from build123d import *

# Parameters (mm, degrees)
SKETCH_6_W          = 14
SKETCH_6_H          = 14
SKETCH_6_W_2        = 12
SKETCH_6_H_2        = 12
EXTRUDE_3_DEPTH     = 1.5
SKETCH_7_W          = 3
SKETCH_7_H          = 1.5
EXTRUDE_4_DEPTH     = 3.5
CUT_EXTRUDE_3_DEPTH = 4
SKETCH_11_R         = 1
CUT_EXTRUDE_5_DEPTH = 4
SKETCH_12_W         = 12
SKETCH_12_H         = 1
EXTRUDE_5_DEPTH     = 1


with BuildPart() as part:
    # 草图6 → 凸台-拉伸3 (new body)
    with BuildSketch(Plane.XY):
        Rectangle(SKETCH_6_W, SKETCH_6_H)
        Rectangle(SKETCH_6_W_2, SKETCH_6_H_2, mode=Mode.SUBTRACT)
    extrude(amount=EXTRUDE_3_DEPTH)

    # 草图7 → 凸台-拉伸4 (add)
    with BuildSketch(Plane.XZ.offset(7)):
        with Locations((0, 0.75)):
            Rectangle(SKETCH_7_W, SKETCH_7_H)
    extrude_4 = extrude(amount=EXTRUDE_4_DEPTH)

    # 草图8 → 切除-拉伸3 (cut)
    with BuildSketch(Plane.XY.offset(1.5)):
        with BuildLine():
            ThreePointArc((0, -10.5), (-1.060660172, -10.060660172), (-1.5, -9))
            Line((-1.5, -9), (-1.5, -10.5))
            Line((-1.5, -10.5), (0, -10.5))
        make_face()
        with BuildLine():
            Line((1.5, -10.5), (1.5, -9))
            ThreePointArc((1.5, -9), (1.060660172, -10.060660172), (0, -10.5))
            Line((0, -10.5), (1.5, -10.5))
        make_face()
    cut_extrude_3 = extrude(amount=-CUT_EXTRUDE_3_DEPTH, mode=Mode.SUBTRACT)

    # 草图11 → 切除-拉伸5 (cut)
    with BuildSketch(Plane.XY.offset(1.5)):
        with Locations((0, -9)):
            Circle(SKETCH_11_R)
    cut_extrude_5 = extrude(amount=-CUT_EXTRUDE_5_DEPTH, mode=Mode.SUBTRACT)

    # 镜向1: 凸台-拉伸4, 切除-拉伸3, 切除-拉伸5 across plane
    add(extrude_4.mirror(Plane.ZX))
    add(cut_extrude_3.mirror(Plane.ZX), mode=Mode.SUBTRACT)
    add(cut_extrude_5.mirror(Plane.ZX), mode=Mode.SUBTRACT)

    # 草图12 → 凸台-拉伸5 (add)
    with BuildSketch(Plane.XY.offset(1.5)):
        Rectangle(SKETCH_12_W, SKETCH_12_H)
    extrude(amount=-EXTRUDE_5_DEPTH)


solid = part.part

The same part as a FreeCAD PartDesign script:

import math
import FreeCAD as App
import Part
import Sketcher
Q = App.Units.Quantity

doc = App.newDocument("Part")
body = doc.addObject("PartDesign::Body", "Body")

# Sketch on XY plane
sketch1 = body.newObject("Sketcher::SketchObject", "Sketch")
sketch1.AttachmentSupport = (doc.getObject("XY_Plane"), [""])
sketch1.MapMode = "FlatFace"
sketch1.addGeometry(Part.LineSegment(App.Vector(-7, 7, 0), App.Vector(-7, -7, 0)), False)
sketch1.addGeometry(Part.LineSegment(App.Vector(-7, -7, 0), App.Vector(7, -7, 0)), False)
sketch1.addGeometry(Part.LineSegment(App.Vector(7, -7, 0), App.Vector(7, 7, 0)), False)
sketch1.addGeometry(Part.LineSegment(App.Vector(7, 7, 0), App.Vector(-7, 7, 0)), False)
sketch1.addGeometry(Part.LineSegment(App.Vector(6, -6, 0), App.Vector(-6, -6, 0)), False)
sketch1.addGeometry(Part.LineSegment(App.Vector(-6, -6, 0), App.Vector(-6, 6, 0)), False)
sketch1.addGeometry(Part.LineSegment(App.Vector(-6, 6, 0), App.Vector(6, 6, 0)), False)
sketch1.addGeometry(Part.LineSegment(App.Vector(6, 6, 0), App.Vector(6, -6, 0)), False)
sketch1.addConstraint(Sketcher.Constraint("Coincident", 0, 2, 1, 1))
sketch1.addConstraint(Sketcher.Constraint("Coincident", 1, 2, 2, 1))
sketch1.addConstraint(Sketcher.Constraint("Coincident", 2, 2, 3, 1))
sketch1.addConstraint(Sketcher.Constraint("Coincident", 3, 2, 0, 1))
sketch1.addConstraint(Sketcher.Constraint("Coincident", 4, 2, 5, 1))
sketch1.addConstraint(Sketcher.Constraint("Coincident", 5, 2, 6, 1))
sketch1.addConstraint(Sketcher.Constraint("Coincident", 6, 2, 7, 1))
sketch1.addConstraint(Sketcher.Constraint("Coincident", 7, 2, 4, 1))
sketch1.addConstraint(Sketcher.Constraint("Vertical", 0))
sketch1.addConstraint(Sketcher.Constraint("Horizontal", 1))
sketch1.addConstraint(Sketcher.Constraint("Vertical", 2))
sketch1.addConstraint(Sketcher.Constraint("Horizontal", 3))
sketch1.addConstraint(Sketcher.Constraint("Horizontal", 4))
sketch1.addConstraint(Sketcher.Constraint("Vertical", 5))
sketch1.addConstraint(Sketcher.Constraint("Horizontal", 6))
sketch1.addConstraint(Sketcher.Constraint("Vertical", 7))
sketch1.addConstraint(Sketcher.Constraint("Symmetric", 0, 2, 2, 2, -1, 1))
sketch1.addConstraint(Sketcher.Constraint("Symmetric", 4, 2, 6, 2, -1, 1))
sketch1.addConstraint(Sketcher.Constraint("Equal", 3, 0))
sketch1.addConstraint(Sketcher.Constraint("Equal", 6, 5))
sketch1.addConstraint(Sketcher.Constraint("DistanceX", 1, 1, 1, 2, Q("14 mm")))
sketch1.addConstraint(Sketcher.Constraint("DistanceX", 4, 2, 4, 1, Q("12 mm")))
pad1 = body.newObject("PartDesign::Pad", "Pad")
pad1.Profile = sketch1
pad1.Length = 1.5

# Sketch on XZ plane
sketch2 = body.newObject("Sketcher::SketchObject", "Sketch001")
sketch2.AttachmentSupport = (doc.getObject("XZ_Plane"), [""])
sketch2.MapMode = "FlatFace"
sketch2.AttachmentOffset = App.Placement(App.Vector(0, 0, 7), App.Rotation())
sketch2.addGeometry(Part.LineSegment(App.Vector(-1.5, 1.5, 0), App.Vector(-1.5, 0, 0)), False)
sketch2.addGeometry(Part.LineSegment(App.Vector(-1.5, 0, 0), App.Vector(1.5, 0, 0)), False)
sketch2.addGeometry(Part.LineSegment(App.Vector(1.5, 0, 0), App.Vector(1.5, 1.5, 0)), False)
sketch2.addGeometry(Part.LineSegment(App.Vector(1.5, 1.5, 0), App.Vector(-1.5, 1.5, 0)), False)
sketch2.addConstraint(Sketcher.Constraint("Coincident", 0, 2, 1, 1))
sketch2.addConstraint(Sketcher.Constraint("Coincident", 1, 2, 2, 1))
sketch2.addConstraint(Sketcher.Constraint("Coincident", 2, 2, 3, 1))
sketch2.addConstraint(Sketcher.Constraint("Coincident", 3, 2, 0, 1))
sketch2.addConstraint(Sketcher.Constraint("Vertical", 0))
sketch2.addConstraint(Sketcher.Constraint("Horizontal", 1))
sketch2.addConstraint(Sketcher.Constraint("Vertical", 2))
sketch2.addConstraint(Sketcher.Constraint("Horizontal", 3))
sketch2.addConstraint(Sketcher.Constraint("Symmetric", 0, 2, 1, 2, -1, 1))
sketch2.addConstraint(Sketcher.Constraint("DistanceX", 1, 1, 1, 2, Q("3 mm")))
sketch2.addConstraint(Sketcher.Constraint("DistanceY", 0, 2, 0, 1, Q("1.5 mm")))
pad2 = body.newObject("PartDesign::Pad", "Pad001")
pad2.Profile = sketch2
pad2.Length = 3.5

# Sketch on XY plane
sketch3 = body.newObject("Sketcher::SketchObject", "Sketch002")
sketch3.AttachmentSupport = (doc.getObject("XY_Plane"), [""])
sketch3.MapMode = "FlatFace"
sketch3.AttachmentOffset = App.Placement(App.Vector(0, 0, 1.5), App.Rotation())
sketch3.addGeometry(Part.ArcOfCircle(Part.Circle(App.Vector(0, -9, 0), App.Vector(0, 0, 1), 1.5), math.radians(180), math.radians(270)), False)
sketch3.addGeometry(Part.LineSegment(App.Vector(-1.5, -9, 0), App.Vector(-1.5, -10.5, 0)), False)
sketch3.addGeometry(Part.LineSegment(App.Vector(-1.5, -10.5, 0), App.Vector(0, -10.5, 0)), False)
sketch3.addGeometry(Part.LineSegment(App.Vector(1.5, -10.5, 0), App.Vector(1.5, -9, 0)), False)
sketch3.addGeometry(Part.ArcOfCircle(Part.Circle(App.Vector(0, -9, 0), App.Vector(0, 0, 1), 1.5), math.radians(-90), math.radians(0)), False)
sketch3.addGeometry(Part.LineSegment(App.Vector(0, -10.5, 0), App.Vector(1.5, -10.5, 0)), False)
sketch3.addConstraint(Sketcher.Constraint("Tangent", 0, 1, 1, 1))
sketch3.addConstraint(Sketcher.Constraint("Coincident", 1, 2, 2, 1))
sketch3.addConstraint(Sketcher.Constraint("Tangent", 2, 2, 0, 2))
sketch3.addConstraint(Sketcher.Constraint("Tangent", 3, 2, 4, 2))
sketch3.addConstraint(Sketcher.Constraint("Tangent", 4, 1, 5, 1))
sketch3.addConstraint(Sketcher.Constraint("Coincident", 5, 2, 3, 1))
sketch3.addConstraint(Sketcher.Constraint("Vertical", 1))
sketch3.addConstraint(Sketcher.Constraint("Horizontal", 2))
sketch3.addConstraint(Sketcher.Constraint("Vertical", 3))
sketch3.addConstraint(Sketcher.Constraint("Horizontal", 5))
sketch3.addConstraint(Sketcher.Constraint("Coincident", 4, 3, 0, 3))
sketch3.addConstraint(Sketcher.Constraint("Equal", 0, 4))
sketch3.addConstraint(Sketcher.Constraint("PointOnObject", 0, 3, -2))
sketch3.addConstraint(Sketcher.Constraint("Radius", 0, Q("1.5 mm")))
sketch3.addConstraint(Sketcher.Constraint("DistanceY", 0, 3, -1, 1, Q("9 mm")))
pocket1 = body.newObject("PartDesign::Pocket", "Pocket")
pocket1.Profile = sketch3
pocket1.Length = 4

# Sketch on XY plane
sketch4 = body.newObject("Sketcher::SketchObject", "Sketch003")
sketch4.AttachmentSupport = (doc.getObject("XY_Plane"), [""])
sketch4.MapMode = "FlatFace"
sketch4.AttachmentOffset = App.Placement(App.Vector(0, 0, 1.5), App.Rotation())
sketch4.addGeometry(Part.Circle(App.Vector(0, -9, 0), App.Vector(0, 0, 1), 1), False)
sketch4.addConstraint(Sketcher.Constraint("PointOnObject", 0, 3, -2))
sketch4.addConstraint(Sketcher.Constraint("Diameter", 0, Q("2 mm")))
sketch4.addConstraint(Sketcher.Constraint("DistanceY", 0, 3, -1, 1, Q("9 mm")))
pocket2 = body.newObject("PartDesign::Pocket", "Pocket001")
pocket2.Profile = sketch4
pocket2.Length = 4
doc.recompute()

mirrored = body.newObject("PartDesign::Mirrored", "Mirrored")
mirrored.Originals = [pad2, pocket1, pocket2]
mirrored.MirrorPlane = (doc.getObject("XZ_Plane"), [""])
body.Tip = mirrored

# Sketch on XY plane
sketch5 = body.newObject("Sketcher::SketchObject", "Sketch004")
sketch5.AttachmentSupport = (doc.getObject("XY_Plane"), [""])
sketch5.MapMode = "FlatFace"
sketch5.AttachmentOffset = App.Placement(App.Vector(0, 0, 1.5), App.Rotation())
sketch5.addGeometry(Part.LineSegment(App.Vector(-6, 0.5, 0), App.Vector(-6, -0.5, 0)), False)
sketch5.addGeometry(Part.LineSegment(App.Vector(-6, -0.5, 0), App.Vector(6, -0.5, 0)), False)
sketch5.addGeometry(Part.LineSegment(App.Vector(6, -0.5, 0), App.Vector(6, 0.5, 0)), False)
sketch5.addGeometry(Part.LineSegment(App.Vector(6, 0.5, 0), App.Vector(-6, 0.5, 0)), False)
sketch5.addConstraint(Sketcher.Constraint("Coincident", 0, 2, 1, 1))
sketch5.addConstraint(Sketcher.Constraint("Coincident", 1, 2, 2, 1))
sketch5.addConstraint(Sketcher.Constraint("Coincident", 2, 2, 3, 1))
sketch5.addConstraint(Sketcher.Constraint("Coincident", 3, 2, 0, 1))
sketch5.addConstraint(Sketcher.Constraint("Vertical", 0))
sketch5.addConstraint(Sketcher.Constraint("Horizontal", 1))
sketch5.addConstraint(Sketcher.Constraint("Vertical", 2))
sketch5.addConstraint(Sketcher.Constraint("Horizontal", 3))
sketch5.addConstraint(Sketcher.Constraint("Symmetric", 0, 2, 2, 2, -1, 1))
sketch5.addConstraint(Sketcher.Constraint("DistanceX", 1, 1, 1, 2, Q("12 mm")))
sketch5.addConstraint(Sketcher.Constraint("DistanceY", 0, 2, 0, 1, Q("1 mm")))
pad3 = body.newObject("PartDesign::Pad", "Pad002")
pad3.Profile = sketch5
pad3.Length = 1
pad3.Reversed = True

doc.recompute()
